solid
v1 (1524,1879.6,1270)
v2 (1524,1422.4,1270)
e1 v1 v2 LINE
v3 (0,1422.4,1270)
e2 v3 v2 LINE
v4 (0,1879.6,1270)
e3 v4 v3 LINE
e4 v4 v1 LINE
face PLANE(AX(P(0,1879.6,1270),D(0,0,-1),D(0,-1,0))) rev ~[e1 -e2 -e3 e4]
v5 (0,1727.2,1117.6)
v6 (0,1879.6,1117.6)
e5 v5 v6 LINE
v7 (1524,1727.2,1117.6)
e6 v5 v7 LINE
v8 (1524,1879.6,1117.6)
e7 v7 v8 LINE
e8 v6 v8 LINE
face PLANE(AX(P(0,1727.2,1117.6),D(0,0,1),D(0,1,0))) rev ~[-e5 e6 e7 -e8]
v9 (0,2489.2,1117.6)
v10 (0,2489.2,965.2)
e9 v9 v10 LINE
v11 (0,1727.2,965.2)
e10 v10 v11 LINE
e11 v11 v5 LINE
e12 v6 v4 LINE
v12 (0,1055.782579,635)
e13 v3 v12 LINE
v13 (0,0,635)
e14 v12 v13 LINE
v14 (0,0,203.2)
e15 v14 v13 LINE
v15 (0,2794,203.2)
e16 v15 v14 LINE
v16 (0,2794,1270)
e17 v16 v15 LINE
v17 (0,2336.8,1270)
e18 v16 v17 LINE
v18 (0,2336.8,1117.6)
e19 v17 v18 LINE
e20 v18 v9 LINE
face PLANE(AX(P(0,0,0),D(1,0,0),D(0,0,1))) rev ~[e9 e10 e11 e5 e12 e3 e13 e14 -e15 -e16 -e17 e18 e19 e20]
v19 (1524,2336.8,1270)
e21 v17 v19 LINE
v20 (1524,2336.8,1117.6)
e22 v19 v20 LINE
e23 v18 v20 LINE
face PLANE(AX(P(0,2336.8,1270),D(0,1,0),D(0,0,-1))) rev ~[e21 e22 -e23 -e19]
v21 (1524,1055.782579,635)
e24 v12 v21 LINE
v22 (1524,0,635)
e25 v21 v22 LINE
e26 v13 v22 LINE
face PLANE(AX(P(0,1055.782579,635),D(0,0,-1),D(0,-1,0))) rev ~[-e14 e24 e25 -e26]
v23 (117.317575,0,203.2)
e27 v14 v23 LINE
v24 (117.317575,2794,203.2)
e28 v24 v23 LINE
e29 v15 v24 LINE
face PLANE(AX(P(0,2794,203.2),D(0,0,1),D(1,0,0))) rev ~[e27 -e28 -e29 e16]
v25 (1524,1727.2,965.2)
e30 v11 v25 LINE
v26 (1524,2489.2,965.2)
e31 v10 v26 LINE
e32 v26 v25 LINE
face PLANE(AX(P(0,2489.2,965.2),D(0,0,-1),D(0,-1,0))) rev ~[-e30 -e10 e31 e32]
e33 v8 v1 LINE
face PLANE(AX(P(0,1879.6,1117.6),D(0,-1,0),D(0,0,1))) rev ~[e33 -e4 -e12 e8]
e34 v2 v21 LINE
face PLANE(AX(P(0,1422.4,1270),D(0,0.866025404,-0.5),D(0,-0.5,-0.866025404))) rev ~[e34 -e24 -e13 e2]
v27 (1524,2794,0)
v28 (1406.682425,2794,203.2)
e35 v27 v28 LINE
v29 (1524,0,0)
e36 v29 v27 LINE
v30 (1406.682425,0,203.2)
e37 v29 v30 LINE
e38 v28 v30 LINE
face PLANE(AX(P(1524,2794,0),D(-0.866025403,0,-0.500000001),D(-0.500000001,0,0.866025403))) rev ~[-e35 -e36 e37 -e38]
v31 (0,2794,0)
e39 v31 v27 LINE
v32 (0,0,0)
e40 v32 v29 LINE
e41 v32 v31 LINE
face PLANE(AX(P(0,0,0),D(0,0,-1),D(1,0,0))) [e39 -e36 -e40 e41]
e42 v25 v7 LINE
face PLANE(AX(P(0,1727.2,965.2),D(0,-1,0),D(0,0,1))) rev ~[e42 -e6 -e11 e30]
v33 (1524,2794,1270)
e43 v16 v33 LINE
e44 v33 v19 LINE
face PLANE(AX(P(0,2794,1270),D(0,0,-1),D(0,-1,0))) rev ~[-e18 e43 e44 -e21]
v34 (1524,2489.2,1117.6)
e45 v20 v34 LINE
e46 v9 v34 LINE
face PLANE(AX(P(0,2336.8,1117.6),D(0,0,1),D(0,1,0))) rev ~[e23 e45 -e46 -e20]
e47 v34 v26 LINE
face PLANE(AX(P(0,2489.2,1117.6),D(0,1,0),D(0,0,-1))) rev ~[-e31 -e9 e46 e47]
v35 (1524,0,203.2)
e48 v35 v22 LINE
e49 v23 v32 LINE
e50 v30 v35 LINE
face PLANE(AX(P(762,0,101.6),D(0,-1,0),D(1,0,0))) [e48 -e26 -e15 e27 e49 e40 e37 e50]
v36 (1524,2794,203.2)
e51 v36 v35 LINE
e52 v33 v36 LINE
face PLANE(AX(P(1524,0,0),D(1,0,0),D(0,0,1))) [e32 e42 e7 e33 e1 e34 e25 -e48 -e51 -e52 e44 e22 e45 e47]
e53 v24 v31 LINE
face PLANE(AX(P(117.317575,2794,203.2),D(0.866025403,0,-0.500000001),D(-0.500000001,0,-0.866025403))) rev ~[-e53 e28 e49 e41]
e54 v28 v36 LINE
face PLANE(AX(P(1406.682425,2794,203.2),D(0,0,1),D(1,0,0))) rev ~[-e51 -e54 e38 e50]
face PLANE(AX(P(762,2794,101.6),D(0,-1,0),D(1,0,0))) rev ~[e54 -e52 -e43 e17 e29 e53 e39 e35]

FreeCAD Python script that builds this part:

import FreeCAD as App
import Part
import Sketcher
from FreeCAD import Vector
Q = App.Units.Quantity

doc = App.newDocument("Part")
params = doc.addObject("Spreadsheet::Sheet", "Params")
for row, (alias, value) in enumerate([
    ("sketch1_width", "110 in"),
    ("sketch1_width2", "18 in"),
    ("sketch1_width3", "6 in"),
    ("sketch1_width4", "30 in"),
    ("sketch1_height", "17 in"),
    ("pad1_length", "60 in"),
    ("sketch2_width", "60 in"),
    ("sketch2_height", "8 in"),
    ("pad2_length", "110 in"),
    ("sketch3_height", "8 in"),
    ("pocket1_length", "110 in"),
], start=1):
    params.set(f"A{row}", alias)
    params.set(f"B{row}", "=" + value)
    params.setAlias(f"B{row}", alias)

body = doc.addObject("PartDesign::Body", "Body")

sketch1 = doc.addObject("Sketcher::SketchObject", "Sketch")
body.addObject(sketch1)
sketch1.AttachmentSupport = (doc.YZ_Plane, [""])
sketch1.MapMode = "FlatFace"
sketch1.addGeometry([
    Part.LineSegment(Vector(0, 635, 0), Vector(0, 203, 0)),
    Part.LineSegment(Vector(0, 203, 0), Vector(2794, 203, 0)),
    Part.LineSegment(Vector(2794, 203, 0), Vector(2794, 1270, 0)),
    Part.LineSegment(Vector(2794, 1270, 0), Vector(2337, 1270, 0)),
    Part.LineSegment(Vector(2337, 1270, 0), Vector(2337, 1118, 0)),
    Part.LineSegment(Vector(2337, 1118, 0), Vector(2489, 1118, 0)),
    Part.LineSegment(Vector(2489, 1118, 0), Vector(2489, 965, 0)),
    Part.LineSegment(Vector(2489, 965, 0), Vector(1727, 965, 0)),
    Part.LineSegment(Vector(1727, 965, 0), Vector(1727, 1118, 0)),
    Part.LineSegment(Vector(1727, 1118, 0), Vector(1880, 1118, 0)),
    Part.LineSegment(Vector(1880, 1118, 0), Vector(1880, 1270, 0)),
    Part.LineSegment(Vector(1880, 1270, 0), Vector(1422, 1270, 0)),
    Part.LineSegment(Vector(1422, 1270, 0), Vector(1056, 635, 0)),
    Part.LineSegment(Vector(1056, 635, 0), Vector(0, 635, 0)),
], False)
sketch1.addConstraint([
    Sketcher.Constraint("Coincident", 0, 2, 1, 1),
    Sketcher.Constraint("Coincident", 1, 2, 2, 1),
    Sketcher.Constraint("Coincident", 2, 2, 3, 1),
    Sketcher.Constraint("Coincident", 3, 2, 4, 1),
    Sketcher.Constraint("Coincident", 4, 2, 5, 1),
    Sketcher.Constraint("Coincident", 5, 2, 6, 1),
    Sketcher.Constraint("Coincident", 6, 2, 7, 1),
    Sketcher.Constraint("Coincident", 7, 2, 8, 1),
    Sketcher.Constraint("Coincident", 8, 2, 9, 1),
    Sketcher.Constraint("Coincident", 9, 2, 10, 1),
    Sketcher.Constraint("Coincident", 10, 2, 11, 1),
    Sketcher.Constraint("Coincident", 11, 2, 12, 1),
    Sketcher.Constraint("Coincident", 12, 2, 13, 1),
    Sketcher.Constraint("Coincident", 13, 2, 0, 1),
    Sketcher.Constraint("Vertical", 0),
    Sketcher.Constraint("Horizontal", 1),
    Sketcher.Constraint("Vertical", 2),
    Sketcher.Constraint("Horizontal", 3),
    Sketcher.Constraint("Vertical", 4),
    Sketcher.Constraint("Horizontal", 5),
    Sketcher.Constraint("Vertical", 6),
    Sketcher.Constraint("Horizontal", 7),
    Sketcher.Constraint("Vertical", 8),
    Sketcher.Constraint("Horizontal", 9),
    Sketcher.Constraint("Vertical", 10),
    Sketcher.Constraint("Horizontal", 11),
    Sketcher.Constraint("Horizontal", 13),
    Sketcher.Constraint("PointOnObject", 0, 2, -2),
    Sketcher.Constraint("Horizontal", 5, 2, 8, 2),
    Sketcher.Constraint("Horizontal", 3, 2, 10, 2),
    Sketcher.Constraint("Equal", 5, 9),
    Sketcher.Constraint("Equal", 3, 11),
    Sketcher.Constraint("Equal", 9, 4),
    Sketcher.Constraint("Equal", 4, 6),
    Sketcher.Constraint("DistanceX", 1, 1, 1, 2, Q("110 in")),
    Sketcher.Constraint("DistanceX", 3, 2, 3, 1, Q("18 in")),
    Sketcher.Constraint("DistanceX", 5, 1, 5, 2, Q("6 in")),
    Sketcher.Constraint("DistanceX", 7, 2, 7, 1, Q("30 in")),
    Sketcher.Constraint("DistanceY", 0, 2, 0, 1, Q("17 in")),
    Sketcher.Constraint("DistanceY", 2, 1, 2, 2, Q("42 in")),
    Sketcher.Constraint("DistanceY", -1, 1, 0, 2, Q("8 in")),
    Sketcher.Constraint("Angle", 12, Q("-120 deg")),
])
sketch1.setExpression("Constraints[34]", "Params.sketch1_width")
sketch1.setExpression("Constraints[35]", "Params.sketch1_width2")
sketch1.setExpression("Constraints[36]", "Params.sketch1_width3")
sketch1.setExpression("Constraints[37]", "Params.sketch1_width4")
sketch1.setExpression("Constraints[38]", "Params.sketch1_height")
pad1 = doc.addObject("PartDesign::Pad", "Pad")
body.addObject(pad1)
pad1.Profile = sketch1
pad1.setExpression("Length", "Params.pad1_length")

sketch2 = doc.addObject("Sketcher::SketchObject", "Sketch001")
body.addObject(sketch2)
sketch2.AttachmentSupport = (doc.XZ_Plane, [""])
sketch2.MapMode = "FlatFace"
sketch2.addGeometry([
    Part.LineSegment(Vector(0, 203, 0), Vector(0, 0, 0)),
    Part.LineSegment(Vector(0, 0, 0), Vector(1524, 0, 0)),
    Part.LineSegment(Vector(1524, 0, 0), Vector(1524, 203, 0)),
    Part.LineSegment(Vector(1524, 203, 0), Vector(0, 203, 0)),
], False)
sketch2.addConstraint([
    Sketcher.Constraint("Coincident", 0, 2, 1, 1),
    Sketcher.Constraint("Coincident", 1, 2, 2, 1),
    Sketcher.Constraint("Coincident", 2, 2, 3, 1),
    Sketcher.Constraint("Coincident", 3, 2, 0, 1),
    Sketcher.Constraint("Vertical", 0),
    Sketcher.Constraint("Horizontal", 1),
    Sketcher.Constraint("Vertical", 2),
    Sketcher.Constraint("Horizontal", 3),
    Sketcher.Constraint("Coincident", 0, 2, -1, 1),
    Sketcher.Constraint("DistanceX", 1, 1, 1, 2, Q("60 in")),
    Sketcher.Constraint("DistanceY", 0, 2, 0, 1, Q("8 in")),
])
sketch2.setExpression("Constraints[9]", "Params.sketch2_width")
sketch2.setExpression("Constraints[10]", "Params.sketch2_height")
pad2 = doc.addObject("PartDesign::Pad", "Pad001")
body.addObject(pad2)
pad2.Profile = sketch2
pad2.setExpression("Length", "Params.pad2_length")
pad2.Reversed = True

sketch3 = doc.addObject("Sketcher::SketchObject", "Sketch002")
body.addObject(sketch3)
sketch3.AttachmentSupport = (doc.XZ_Plane, [""])
sketch3.MapMode = "FlatFace"
sketch3.AttachmentOffset = App.Placement(Vector(0, 0, -110 * 25.4), App.Rotation())
sketch3.addGeometry([
    Part.LineSegment(Vector(1524, 203, 0), Vector(1524, 0, 0)),
    Part.LineSegment(Vector(1524, 0, 0), Vector(1407, 203, 0)),
    Part.LineSegment(Vector(1407, 203, 0), Vector(1524, 203, 0)),
    Part.LineSegment(Vector(117, 203, 0), Vector(0, 0, 0)),
    Part.LineSegment(Vector(0, 0, 0), Vector(0, 203, 0)),
    Part.LineSegment(Vector(0, 203, 0), Vector(117, 203, 0)),
], False)
sketch3.addConstraint([
    Sketcher.Constraint("Coincident", 0, 2, 1, 1),
    Sketcher.Constraint("Coincident", 1, 2, 2, 1),
    Sketcher.Constraint("Coincident", 2, 2, 0, 1),
    Sketcher.Constraint("Coincident", 3, 2, 4, 1),
    Sketcher.Constraint("Coincident", 4, 2, 5, 1),
    Sketcher.Constraint("Coincident", 5, 2, 3, 1),
    Sketcher.Constraint("Vertical", 0),
    Sketcher.Constraint("Horizontal", 2),
    Sketcher.Constraint("Vertical", 4),
    Sketcher.Constraint("Horizontal", 5),
    Sketcher.Constraint("Coincident", 3, 2, -1, 1),
    Sketcher.Constraint("PointOnObject", 0, 2, -1),
    Sketcher.Constraint("Horizontal", 2, 2, 4, 2),
    Sketcher.Constraint("Equal", 2, 5),
    Sketcher.Constraint("DistanceY", 0, 2, 0, 1, Q("8 in")),
    Sketcher.Constraint("DistanceX", -1, 1, 0, 2, Q("60 in")),
    Sketcher.Constraint("Angle", 1, Q("120 deg")),
])
sketch3.setExpression("Constraints[14]", "Params.sketch3_height")
pocket1 = doc.addObject("PartDesign::Pocket", "Pocket")
body.addObject(pocket1)
pocket1.Profile = sketch3
pocket1.setExpression("Length", "Params.pocket1_length")
pocket1.Reversed = True

doc.recompute()
